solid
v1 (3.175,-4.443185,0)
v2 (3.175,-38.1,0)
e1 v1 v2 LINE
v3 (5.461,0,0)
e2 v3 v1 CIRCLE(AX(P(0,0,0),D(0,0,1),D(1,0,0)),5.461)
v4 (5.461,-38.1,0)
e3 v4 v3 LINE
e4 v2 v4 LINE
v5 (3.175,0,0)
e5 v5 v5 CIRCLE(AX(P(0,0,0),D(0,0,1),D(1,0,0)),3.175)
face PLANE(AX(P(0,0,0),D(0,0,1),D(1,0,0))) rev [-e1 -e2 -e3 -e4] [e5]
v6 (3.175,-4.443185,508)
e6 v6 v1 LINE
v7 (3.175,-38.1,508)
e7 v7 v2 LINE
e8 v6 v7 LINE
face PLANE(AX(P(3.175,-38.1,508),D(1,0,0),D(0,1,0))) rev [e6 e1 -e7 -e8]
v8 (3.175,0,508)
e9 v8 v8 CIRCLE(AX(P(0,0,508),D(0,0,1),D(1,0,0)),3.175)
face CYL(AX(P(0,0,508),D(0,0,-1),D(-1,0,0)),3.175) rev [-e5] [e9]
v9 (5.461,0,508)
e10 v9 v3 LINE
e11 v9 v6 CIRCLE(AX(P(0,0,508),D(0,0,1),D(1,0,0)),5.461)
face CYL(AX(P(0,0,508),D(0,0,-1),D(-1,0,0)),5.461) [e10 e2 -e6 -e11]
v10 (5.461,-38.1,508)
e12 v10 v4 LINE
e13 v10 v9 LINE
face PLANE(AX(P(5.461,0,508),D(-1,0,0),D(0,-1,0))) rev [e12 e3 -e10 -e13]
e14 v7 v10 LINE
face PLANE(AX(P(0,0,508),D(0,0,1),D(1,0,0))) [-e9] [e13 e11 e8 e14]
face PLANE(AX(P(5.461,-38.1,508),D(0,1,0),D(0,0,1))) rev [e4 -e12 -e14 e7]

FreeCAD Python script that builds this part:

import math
import FreeCAD as App
import Part
import Sketcher
Q = App.Units.Quantity

doc = App.newDocument("Part")
params = doc.addObject("Spreadsheet::Sheet", "Params")
for row, (alias, value) in enumerate([
    ("sketch1_diameter", "0.25 in"),
    ("sketch1_height", "1.5 in"),
    ("sketch1_radius", "0.215 in"),
    ("sketch1_width", "0.09 in"),
    ("pad1_length", "20 in"),
], start=1):
    params.set(f"A{row}", alias)
    params.set(f"B{row}", "=" + value)
    params.setAlias(f"B{row}", alias)

body = doc.addObject("PartDesign::Body", "Body")

# Sketch on XY plane
sketch1 = doc.addObject("Sketcher::SketchObject", "Sketch")
body.addObject(sketch1)
sketch1.AttachmentSupport = (doc.XY_Plane, [""])
sketch1.MapMode = "FlatFace"
sketch1.addGeometry([
    Part.LineSegment(App.Vector(5.5, -38.1, 0), App.Vector(5.5, 0, 0)),  # 0
    Part.ArcOfCircle(Part.Circle(App.Vector(0, 0, 0), App.Vector(0, 0, 1), 5.5), math.radians(0), math.radians(306)),  # 1
    Part.LineSegment(App.Vector(3.2, -4.4, 0), App.Vector(3.2, -38.1, 0)),  # 2
    Part.LineSegment(App.Vector(3.2, -38.1, 0), App.Vector(5.5, -38.1, 0)),  # 3
    Part.Circle(App.Vector(0, 0, 0), App.Vector(0, 0, 1), 3.2),  # 4
], False)
sketch1.addConstraint([
    Sketcher.Constraint("Tangent", 0, 2, 1, 1),
    Sketcher.Constraint("Coincident", 1, 2, 2, 1),
    Sketcher.Constraint("Coincident", 2, 2, 3, 1),
    Sketcher.Constraint("Coincident", 3, 2, 0, 1),
    Sketcher.Constraint("Vertical", 0),
    Sketcher.Constraint("Vertical", 2),
    Sketcher.Constraint("Horizontal", 3),
    Sketcher.Constraint("Coincident", 1, 3, -1, 1),
    Sketcher.Constraint("Coincident", 4, 3, -1, 1),
    Sketcher.Constraint("Diameter", 4, Q("0.25 in")),
    Sketcher.Constraint("DistanceY", 0, 1, 0, 2, Q("1.5 in")),
    Sketcher.Constraint("Radius", 1, Q("0.215 in")),
    Sketcher.Constraint("DistanceX", 3, 1, 3, 2, Q("0.09 in")),
])
sketch1.setExpression("Constraints[9]", "Params.sketch1_diameter")
sketch1.setExpression("Constraints[10]", "Params.sketch1_height")
sketch1.setExpression("Constraints[11]", "Params.sketch1_radius")
sketch1.setExpression("Constraints[12]", "Params.sketch1_width")
pad1 = doc.addObject("PartDesign::Pad", "Pad")
body.addObject(pad1)
pad1.Profile = sketch1
pad1.setExpression("Length", "Params.pad1_length")

doc.recompute()
